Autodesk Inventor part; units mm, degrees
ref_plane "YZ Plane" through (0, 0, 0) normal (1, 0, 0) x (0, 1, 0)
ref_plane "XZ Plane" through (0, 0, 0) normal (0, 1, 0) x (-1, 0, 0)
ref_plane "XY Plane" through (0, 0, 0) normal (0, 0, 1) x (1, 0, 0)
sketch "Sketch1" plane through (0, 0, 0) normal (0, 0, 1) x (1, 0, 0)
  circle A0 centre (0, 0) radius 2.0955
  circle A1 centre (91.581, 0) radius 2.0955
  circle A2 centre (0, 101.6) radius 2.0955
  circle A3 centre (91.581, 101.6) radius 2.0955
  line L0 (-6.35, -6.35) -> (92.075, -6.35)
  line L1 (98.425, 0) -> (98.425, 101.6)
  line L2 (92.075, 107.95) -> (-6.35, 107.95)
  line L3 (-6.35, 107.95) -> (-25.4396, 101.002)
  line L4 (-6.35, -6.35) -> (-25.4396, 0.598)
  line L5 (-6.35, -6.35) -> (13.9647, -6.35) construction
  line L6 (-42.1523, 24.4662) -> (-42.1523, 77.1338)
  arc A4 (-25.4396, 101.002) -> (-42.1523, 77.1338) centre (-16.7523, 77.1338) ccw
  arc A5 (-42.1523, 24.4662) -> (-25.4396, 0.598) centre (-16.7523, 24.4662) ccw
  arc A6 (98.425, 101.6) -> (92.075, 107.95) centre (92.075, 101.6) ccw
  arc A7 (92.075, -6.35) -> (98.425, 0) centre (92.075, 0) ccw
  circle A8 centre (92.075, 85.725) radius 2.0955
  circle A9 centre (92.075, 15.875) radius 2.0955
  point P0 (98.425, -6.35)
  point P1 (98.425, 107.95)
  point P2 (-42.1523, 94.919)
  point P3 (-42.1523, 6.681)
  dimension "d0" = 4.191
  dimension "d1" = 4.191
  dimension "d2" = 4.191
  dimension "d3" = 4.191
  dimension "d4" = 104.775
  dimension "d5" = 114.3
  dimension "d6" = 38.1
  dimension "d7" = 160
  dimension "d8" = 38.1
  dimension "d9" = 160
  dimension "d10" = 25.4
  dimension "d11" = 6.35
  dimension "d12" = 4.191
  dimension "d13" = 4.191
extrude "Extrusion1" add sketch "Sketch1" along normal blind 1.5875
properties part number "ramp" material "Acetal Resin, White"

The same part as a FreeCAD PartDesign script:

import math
import FreeCAD as App
import Part
import Sketcher
from FreeCAD import Vector
Q = App.Units.Quantity

doc = App.newDocument("Part")
params = doc.addObject("Spreadsheet::Sheet", "Params")
for row, (alias, value) in enumerate([
    ("sketch1_radius", "1 in"),
    ("sketch1_radius2", "0.25 in"),
    ("sketch1_diameter", "0.165 in"),
    ("sketch1_height", "4 in"),
    ("sketch1_width", "3.875 in"),
    ("pad1_length", "0.0625 in"),
], start=1):
    params.set(f"A{row}", alias)
    params.set(f"B{row}", "=" + value)
    params.setAlias(f"B{row}", alias)

body = doc.addObject("PartDesign::Body", "Body")

# Sketch on XY plane
sketch1 = doc.addObject("Sketcher::SketchObject", "Sketch")
body.addObject(sketch1)
sketch1.AttachmentSupport = (doc.XY_Plane, [""])
sketch1.MapMode = "FlatFace"
sketch1.addGeometry([
    Part.LineSegment(Vector(-25.4, 0.6, 0), Vector(-6.3, -6.3, 0)),  # 0
    Part.LineSegment(Vector(-6.3, -6.3, 0), Vector(92.1, -6.3, 0)),  # 1
    Part.ArcOfCircle(Part.Circle(Vector(92.1, 0, 0), Vector(0, 0, 1), 6.3), math.radians(-90), math.radians(0)),  # 2
    Part.LineSegment(Vector(98.4, 0, 0), Vector(98.4, 101.6, 0)),  # 3
    Part.ArcOfCircle(Part.Circle(Vector(92.1, 101.6, 0), Vector(0, 0, 1), 6.3), math.radians(0), math.radians(90)),  # 4
    Part.LineSegment(Vector(92.1, 108, 0), Vector(-6.3, 108, 0)),  # 5
    Part.LineSegment(Vector(-6.3, 108, 0), Vector(-25.4, 101, 0)),  # 6
    Part.ArcOfCircle(Part.Circle(Vector(-16.8, 77.1, 0), Vector(0, 0, 1), 25.4), math.radians(110), math.radians(180)),  # 7
    Part.LineSegment(Vector(-42.2, 77.1, 0), Vector(-42.2, 24.5, 0)),  # 8
    Part.ArcOfCircle(Part.Circle(Vector(-16.8, 24.5, 0), Vector(0, 0, 1), 25.4), math.radians(180), math.radians(250)),  # 9
    Part.Circle(Vector(0, 0, 0), Vector(0, 0, 1), 2.1),  # 10
    Part.Circle(Vector(91.6, 0, 0), Vector(0, 0, 1), 2.1),  # 11
    Part.Circle(Vector(92.1, 15.9, 0), Vector(0, 0, 1), 2.1),  # 12
    Part.Circle(Vector(0, 101.6, 0), Vector(0, 0, 1), 2.1),  # 13
    Part.Circle(Vector(92.1, 85.7, 0), Vector(0, 0, 1), 2.1),  # 14
    Part.Circle(Vector(91.6, 101.6, 0), Vector(0, 0, 1), 2.1),  # 15
], False)
sketch1.addConstraint([
    Sketcher.Constraint("Coincident", 0, 2, 1, 1),
    Sketcher.Constraint("Tangent", 1, 2, 2, 1),
    Sketcher.Constraint("Tangent", 2, 2, 3, 1),
    Sketcher.Constraint("Tangent", 3, 2, 4, 1),
    Sketcher.Constraint("Tangent", 4, 2, 5, 1),
    Sketcher.Constraint("Coincident", 5, 2, 6, 1),
    Sketcher.Constraint("Tangent", 6, 2, 7, 1),
    Sketcher.Constraint("Tangent", 7, 2, 8, 1),
    Sketcher.Constraint("Tangent", 8, 2, 9, 1),
    Sketcher.Constraint("Tangent", 9, 2, 0, 1),
    Sketcher.Constraint("Horizontal", 1),
    Sketcher.Constraint("Vertical", 3),
    Sketcher.Constraint("Horizontal", 5),
    Sketcher.Constraint("Vertical", 8),
    Sketcher.Constraint("Coincident", 10, 3, -1, 1),
    Sketcher.Constraint("Equal", 2, 4),
    Sketcher.Constraint("Equal", 7, 9),
    Sketcher.Constraint("Equal", 10, 11),
    Sketcher.Constraint("Equal", 11, 12),
    Sketcher.Constraint("Equal", 12, 13),
    Sketcher.Constraint("Equal", 13, 14),
    Sketcher.Constraint("Equal", 14, 15),
    Sketcher.Constraint("PointOnObject", 2, 3, -1),
    Sketcher.Constraint("PointOnObject", 11, 3, -1),
    Sketcher.Constraint("PointOnObject", 13, 3, -2),
    Sketcher.Constraint("Horizontal", 4, 3, 13, 3),
    Sketcher.Constraint("Horizontal", 13, 3, 15, 3),
    Sketcher.Constraint("Vertical", 4, 3, 12, 3),
    Sketcher.Constraint("Vertical", 12, 3, 14, 3),
    Sketcher.Constraint("Vertical", 11, 3, 15, 3),
    Sketcher.Constraint("Vertical", 0, 2, 5, 2),
    Sketcher.Constraint("Vertical", 6, 2, 9, 2),
    Sketcher.Constraint("Radius", 7, Q("1 in")),
    Sketcher.Constraint("Radius", 2, Q("0.25 in")),
    Sketcher.Constraint("Diameter", 10, Q("0.165 in")),
    Sketcher.Constraint("Angle", 6, Q("-160.0001 deg")),
    Sketcher.Constraint("DistanceY", 3, 1, 3, 2, Q("4 in")),
    Sketcher.Constraint("DistanceX", 0, 2, -1, 1, Q("0.25 in")),
    Sketcher.Constraint("DistanceX", 1, 1, 1, 2, Q("3.875 in")),
    Sketcher.Constraint("DistanceY", 12, 3, 14, 3, Q("2.75 in")),
    Sketcher.Constraint("DistanceY", -1, 1, 12, 3, Q("0.625 in")),
    Sketcher.Constraint("Distance", 0, Q("0.7998 in")),
    Sketcher.Constraint("DistanceX", 9, 3, 11, 3, Q("4.2651 in")),
])
sketch1.setExpression("Constraints[32]", "Params.sketch1_radius")
sketch1.setExpression("Constraints[33]", "Params.sketch1_radius2")
sketch1.setExpression("Constraints[34]", "Params.sketch1_diameter")
sketch1.setExpression("Constraints[36]", "Params.sketch1_height")
sketch1.setExpression("Constraints[38]", "Params.sketch1_width")
pad1 = doc.addObject("PartDesign::Pad", "Pad")
body.addObject(pad1)
pad1.Profile = sketch1
pad1.setExpression("Length", "Params.pad1_length")

doc.recompute()
